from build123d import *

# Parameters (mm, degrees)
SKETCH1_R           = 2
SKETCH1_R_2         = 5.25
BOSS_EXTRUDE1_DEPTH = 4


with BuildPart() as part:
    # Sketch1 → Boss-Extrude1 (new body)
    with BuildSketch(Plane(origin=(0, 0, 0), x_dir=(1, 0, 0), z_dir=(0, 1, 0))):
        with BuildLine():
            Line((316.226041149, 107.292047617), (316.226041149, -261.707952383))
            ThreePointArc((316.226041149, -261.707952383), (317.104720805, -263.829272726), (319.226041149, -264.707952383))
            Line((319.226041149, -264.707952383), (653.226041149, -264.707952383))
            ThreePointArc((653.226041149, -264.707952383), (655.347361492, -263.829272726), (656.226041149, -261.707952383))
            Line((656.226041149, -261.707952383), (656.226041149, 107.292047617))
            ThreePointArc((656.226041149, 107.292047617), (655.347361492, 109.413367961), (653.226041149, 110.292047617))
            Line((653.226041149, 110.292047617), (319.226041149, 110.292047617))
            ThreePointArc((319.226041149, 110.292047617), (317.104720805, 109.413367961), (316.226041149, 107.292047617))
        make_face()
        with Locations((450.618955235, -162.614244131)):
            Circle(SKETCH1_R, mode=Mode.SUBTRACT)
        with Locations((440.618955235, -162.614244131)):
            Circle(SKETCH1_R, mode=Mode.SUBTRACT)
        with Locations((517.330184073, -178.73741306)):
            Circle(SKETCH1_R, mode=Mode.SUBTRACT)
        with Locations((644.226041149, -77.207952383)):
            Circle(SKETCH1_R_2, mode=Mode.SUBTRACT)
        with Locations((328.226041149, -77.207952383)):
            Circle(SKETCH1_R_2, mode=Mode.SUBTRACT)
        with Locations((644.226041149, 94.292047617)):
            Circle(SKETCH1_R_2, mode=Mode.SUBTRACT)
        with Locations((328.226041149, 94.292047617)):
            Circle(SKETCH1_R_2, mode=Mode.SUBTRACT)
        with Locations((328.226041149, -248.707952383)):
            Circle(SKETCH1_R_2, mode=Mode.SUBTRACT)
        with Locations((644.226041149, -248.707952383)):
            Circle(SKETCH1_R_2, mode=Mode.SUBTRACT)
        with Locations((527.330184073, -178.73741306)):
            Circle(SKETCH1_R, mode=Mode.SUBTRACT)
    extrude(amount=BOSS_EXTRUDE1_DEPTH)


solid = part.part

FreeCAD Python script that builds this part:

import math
import FreeCAD as App
import Part
import Sketcher

V = App.Vector
Q = App.Units.Quantity

doc = App.newDocument("Part")
body = doc.addObject("PartDesign::Body", "Body")

# Sketch on XZ plane
sketch1 = body.newObject("Sketcher::SketchObject", "Sketch")
sketch1.AttachmentSupport = (doc.getObject("XZ_Plane"), [""])
sketch1.MapMode = "FlatFace"
sketch1.addGeometry([
    Part.LineSegment(V(316.226041, -107.292048, 0), V(316.226041, 261.707952, 0)),  # 0
    Part.ArcOfCircle(Part.Circle(V(319.226041, 261.707952, 0), V(0, 0, 1), 3), math.radians(90), math.radians(180)),  # 1
    Part.LineSegment(V(319.226041, 264.707952, 0), V(653.226041, 264.707952, 0)),  # 2
    Part.ArcOfCircle(Part.Circle(V(653.226041, 261.707952, 0), V(0, 0, 1), 3), math.radians(0), math.radians(90)),  # 3
    Part.LineSegment(V(656.226041, 261.707952, 0), V(656.226041, -107.292048, 0)),  # 4
    Part.ArcOfCircle(Part.Circle(V(653.226041, -107.292048, 0), V(0, 0, 1), 3), math.radians(-90), math.radians(0)),  # 5
    Part.LineSegment(V(653.226041, -110.292048, 0), V(319.226041, -110.292048, 0)),  # 6
    Part.ArcOfCircle(Part.Circle(V(319.226041, -107.292048, 0), V(0, 0, 1), 3), math.radians(180), math.radians(270)),  # 7
    Part.Circle(V(328.226041, 248.707952, 0), V(0, 0, 1), 5.25),  # 8
    Part.Circle(V(328.226041, 77.207952, 0), V(0, 0, 1), 5.25),  # 9
    Part.Circle(V(440.618955, 162.614244, 0), V(0, 0, 1), 2),  # 10
    Part.Circle(V(450.618955, 162.614244, 0), V(0, 0, 1), 2),  # 11
    Part.Circle(V(517.330184, 178.737413, 0), V(0, 0, 1), 2),  # 12
    Part.Circle(V(527.330184, 178.737413, 0), V(0, 0, 1), 2),  # 13
    Part.Circle(V(644.226041, 248.707952, 0), V(0, 0, 1), 5.25),  # 14
    Part.Circle(V(644.226041, 77.207952, 0), V(0, 0, 1), 5.25),  # 15
    Part.Circle(V(328.226041, -94.292048, 0), V(0, 0, 1), 5.25),  # 16
    Part.Circle(V(644.226041, -94.292048, 0), V(0, 0, 1), 5.25),  # 17
], False)
sketch1.addConstraint([
    Sketcher.Constraint("Tangent", 0, 2, 1, 2),
    Sketcher.Constraint("Tangent", 1, 1, 2, 1),
    Sketcher.Constraint("Tangent", 2, 2, 3, 2),
    Sketcher.Constraint("Tangent", 3, 1, 4, 1),
    Sketcher.Constraint("Tangent", 4, 2, 5, 2),
    Sketcher.Constraint("Tangent", 5, 1, 6, 1),
    Sketcher.Constraint("Tangent", 6, 2, 7, 2),
    Sketcher.Constraint("Tangent", 7, 1, 0, 1),
    Sketcher.Constraint("Vertical", 0),
    Sketcher.Constraint("Horizontal", 2),
    Sketcher.Constraint("Vertical", 4),
    Sketcher.Constraint("Horizontal", 6),
    Sketcher.Constraint("Equal", 1, 3),
    Sketcher.Constraint("Equal", 3, 5),
    Sketcher.Constraint("Equal", 5, 7),
    Sketcher.Constraint("Equal", 8, 9),
    Sketcher.Constraint("Equal", 10, 11),
    Sketcher.Constraint("Equal", 11, 12),
    Sketcher.Constraint("Equal", 12, 13),
    Sketcher.Constraint("Equal", 9, 14),
    Sketcher.Constraint("Equal", 14, 15),
    Sketcher.Constraint("Equal", 15, 16),
    Sketcher.Constraint("Equal", 16, 17),
    Sketcher.Constraint("Horizontal", 10, 3, 11, 3),
    Sketcher.Constraint("Horizontal", 12, 3, 13, 3),
    Sketcher.Constraint("Horizontal", 8, 3, 14, 3),
    Sketcher.Constraint("Horizontal", 9, 3, 15, 3),
    Sketcher.Constraint("Horizontal", 16, 3, 17, 3),
    Sketcher.Constraint("Vertical", 8, 3, 9, 3),
    Sketcher.Constraint("Vertical", 14, 3, 15, 3),
    Sketcher.Constraint("Vertical", 9, 3, 16, 3),
    Sketcher.Constraint("Vertical", 15, 3, 17, 3),
    Sketcher.Constraint("Diameter", 10, Q("4 mm")),
    Sketcher.Constraint("Radius", 1, Q("3 mm")),
    Sketcher.Constraint("Diameter", 8, Q("10.5 mm")),
    Sketcher.Constraint("DistanceX", 2, 1, 2, 2, Q("334 mm")),
    Sketcher.Constraint("DistanceY", 0, 1, 0, 2, Q("369 mm")),
    Sketcher.Constraint("DistanceX", 1, 3, 8, 3, Q("9 mm")),
    Sketcher.Constraint("DistanceY", 8, 3, 1, 3, Q("13 mm")),
    Sketcher.Constraint("DistanceX", 10, 3, 11, 3, Q("10 mm")),
    Sketcher.Constraint("DistanceX", 12, 3, 13, 3, Q("10 mm")),
    Sketcher.Constraint("DistanceX", 14, 3, 3, 3, Q("9 mm")),
    Sketcher.Constraint("DistanceY", 7, 3, 16, 3, Q("13 mm")),
    Sketcher.Constraint("DistanceY", 9, 3, 8, 3, Q("171.5 mm")),
    Sketcher.Constraint("DistanceX", -1, 1, 1, 3, Q("319.226041 mm")),
    Sketcher.Constraint("DistanceY", 9, 3, 10, 3, Q("85.406292 mm")),
    Sketcher.Constraint("DistanceX", 11, 3, 12, 3, Q("66.711229 mm")),
    Sketcher.Constraint("DistanceY", 11, 3, 12, 3, Q("16.123169 mm")),
    Sketcher.Constraint("DistanceY", -1, 1, 1, 3, Q("261.707952 mm")),
    Sketcher.Constraint("DistanceX", -1, 1, 10, 3, Q("440.618955 mm")),
])
pad1 = body.newObject("PartDesign::Pad", "Pad")
pad1.Profile = sketch1
pad1.Length = 4
pad1.Reversed = True

doc.recompute()
